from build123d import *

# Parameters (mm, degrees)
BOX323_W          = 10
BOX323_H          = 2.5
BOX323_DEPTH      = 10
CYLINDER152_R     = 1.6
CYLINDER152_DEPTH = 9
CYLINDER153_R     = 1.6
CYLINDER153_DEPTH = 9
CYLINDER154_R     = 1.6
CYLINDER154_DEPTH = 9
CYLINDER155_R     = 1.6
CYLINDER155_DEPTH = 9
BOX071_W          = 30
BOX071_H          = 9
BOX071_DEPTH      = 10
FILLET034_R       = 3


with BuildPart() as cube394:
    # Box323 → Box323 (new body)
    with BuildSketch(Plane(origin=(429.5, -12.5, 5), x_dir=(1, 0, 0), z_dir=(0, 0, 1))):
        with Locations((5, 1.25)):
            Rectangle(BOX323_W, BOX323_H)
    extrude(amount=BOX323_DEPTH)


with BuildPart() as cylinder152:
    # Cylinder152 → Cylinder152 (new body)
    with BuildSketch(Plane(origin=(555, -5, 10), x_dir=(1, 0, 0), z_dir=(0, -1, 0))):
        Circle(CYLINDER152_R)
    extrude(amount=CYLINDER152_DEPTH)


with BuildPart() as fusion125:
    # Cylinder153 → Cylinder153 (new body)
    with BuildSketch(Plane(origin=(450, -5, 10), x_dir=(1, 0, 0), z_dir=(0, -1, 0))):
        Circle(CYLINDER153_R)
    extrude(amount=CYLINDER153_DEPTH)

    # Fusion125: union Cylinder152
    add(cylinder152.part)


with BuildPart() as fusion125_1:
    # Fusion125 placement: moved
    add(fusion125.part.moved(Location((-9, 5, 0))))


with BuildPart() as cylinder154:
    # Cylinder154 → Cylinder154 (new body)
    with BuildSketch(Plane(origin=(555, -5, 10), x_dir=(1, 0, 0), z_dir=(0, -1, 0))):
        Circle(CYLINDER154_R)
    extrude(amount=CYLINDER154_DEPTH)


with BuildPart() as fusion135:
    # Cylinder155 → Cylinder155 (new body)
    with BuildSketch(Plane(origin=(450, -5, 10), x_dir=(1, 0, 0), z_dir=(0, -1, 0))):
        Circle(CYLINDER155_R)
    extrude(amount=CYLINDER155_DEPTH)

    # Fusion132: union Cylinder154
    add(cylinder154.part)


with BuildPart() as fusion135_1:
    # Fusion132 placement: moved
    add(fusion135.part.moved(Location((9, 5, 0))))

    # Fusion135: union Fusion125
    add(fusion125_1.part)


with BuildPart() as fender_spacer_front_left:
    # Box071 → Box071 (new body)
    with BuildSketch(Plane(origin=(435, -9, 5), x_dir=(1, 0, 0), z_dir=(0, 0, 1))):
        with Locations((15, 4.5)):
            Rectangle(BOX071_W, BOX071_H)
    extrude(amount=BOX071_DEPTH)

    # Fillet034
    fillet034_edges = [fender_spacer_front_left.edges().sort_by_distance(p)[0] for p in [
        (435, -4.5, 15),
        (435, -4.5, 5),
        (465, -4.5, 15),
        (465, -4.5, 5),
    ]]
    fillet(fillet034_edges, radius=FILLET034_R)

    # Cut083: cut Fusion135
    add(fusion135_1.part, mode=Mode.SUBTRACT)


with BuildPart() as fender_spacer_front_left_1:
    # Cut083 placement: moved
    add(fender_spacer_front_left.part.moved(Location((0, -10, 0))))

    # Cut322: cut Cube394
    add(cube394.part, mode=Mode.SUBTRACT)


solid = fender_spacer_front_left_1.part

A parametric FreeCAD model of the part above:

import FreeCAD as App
import Part
import Sketcher

V = App.Vector


def edges_at(feature, points):
    """Names of the edges that pass closest to the given points."""
    edges = feature.Shape.Edges
    near = lambda p: min(range(len(edges)), key=lambda i: edges[i].distToShape(Part.Vertex(*p))[0])
    return sorted({f"Edge{near(p) + 1}" for p in points})


def add_polygon(sketch, points):
    """Adds a closed chain of lines whose ends are joined by coincident constraints."""
    first, n = sketch.GeometryCount, len(points)
    for a, b in zip(points, points[1:] + points[:1]):
        sketch.addGeometry(Part.LineSegment(App.Vector(*a, 0), App.Vector(*b, 0)), False)
    for i in range(n):
        sketch.addConstraint(Sketcher.Constraint("Coincident", first + i, 2, first + (i + 1) % n, 1))

doc = App.newDocument("Part")
params = doc.addObject("Spreadsheet::Sheet", "Params")
for row, (alias, value) in enumerate([
    ("sketch1_width", "10 mm"),
    ("sketch1_height", "2.5 mm"),
    ("pad1_length", "10 mm"),
    ("sketch2_diameter", "3.2 mm"),
    ("pad2_length", "9 mm"),
    ("sketch3_diameter", "3.2 mm"),
    ("pad3_length", "9 mm"),
    ("sketch4_diameter", "3.2 mm"),
    ("pad4_length", "9 mm"),
    ("sketch5_diameter", "3.2 mm"),
    ("pad5_length", "9 mm"),
    ("sketch6_width", "30 mm"),
    ("sketch6_height", "9 mm"),
    ("pad6_length", "10 mm"),
    ("fillet_radius", "3 mm"),
], start=1):
    params.set(f"A{row}", alias)
    params.set(f"B{row}", "=" + value)
    params.setAlias(f"B{row}", alias)

body = doc.addObject("PartDesign::Body", "Body")

# Sketch on XY plane
sketch1 = doc.addObject("Sketcher::SketchObject", "Sketch")
body.addObject(sketch1)
sketch1.AttachmentSupport = (doc.XY_Plane, [""])
sketch1.MapMode = "FlatFace"
sketch1.AttachmentOffset = App.Placement(V(0, 0, 5), App.Rotation())
add_polygon(sketch1, [(429.5, -10), (429.5, -12.5), (439.5, -12.5), (439.5, -10)])  # lines 0-3
sketch1.addConstraint([
    Sketcher.Constraint("Vertical", 0),
    Sketcher.Constraint("Horizontal", 1),
    Sketcher.Constraint("Vertical", 2),
    Sketcher.Constraint("Horizontal", 3),
    Sketcher.Constraint("DistanceX", 1, 1, 1, 2, 10.0),
    Sketcher.Constraint("DistanceY", 0, 2, 0, 1, 2.5),
    Sketcher.Constraint("DistanceY", 2, 2, -1, 1, 10.0),
    Sketcher.Constraint("DistanceX", -1, 1, 0, 2, 429.5),
])
sketch1.setExpression("Constraints[8]", "Params.sketch1_width")
sketch1.setExpression("Constraints[9]", "Params.sketch1_height")
pad1 = doc.addObject("PartDesign::Pad", "Pad")
body.addObject(pad1)
pad1.Profile = sketch1
pad1.setExpression("Length", "Params.pad1_length")
body2 = doc.addObject("PartDesign::Body", "Body001")

# Sketch on XZ plane
sketch2 = doc.addObject("Sketcher::SketchObject", "Sketch001")
body2.addObject(sketch2)
sketch2.AttachmentSupport = (doc.getObject("XZ_Plane001"), [""])
sketch2.MapMode = "FlatFace"
sketch2.AttachmentOffset = App.Placement(V(0, 0, 5), App.Rotation())
sketch2.addGeometry(Part.Circle(V(555, 10, 0), V(0, 0, 1), 1.6), False)
sketch2.addConstraint([
    Sketcher.Constraint("Diameter", 0, 3.2),
    Sketcher.Constraint("DistanceX", -1, 1, 0, 3, 555.0),
    Sketcher.Constraint("DistanceY", -1, 1, 0, 3, 10.0),
])
sketch2.setExpression("Constraints[0]", "Params.sketch2_diameter")
pad2 = doc.addObject("PartDesign::Pad", "Pad001")
body2.addObject(pad2)
pad2.Profile = sketch2
pad2.setExpression("Length", "Params.pad2_length")
body3 = doc.addObject("PartDesign::Body", "Body002")
body3.AllowCompound = True

# Sketch on XZ plane
sketch3 = doc.addObject("Sketcher::SketchObject", "Sketch002")
body3.addObject(sketch3)
sketch3.AttachmentSupport = (doc.getObject("XZ_Plane002"), [""])
sketch3.MapMode = "FlatFace"
sketch3.AttachmentOffset = App.Placement(V(0, 0, 5), App.Rotation())
sketch3.addGeometry(Part.Circle(V(450, 10, 0), V(0, 0, 1), 1.6), False)
sketch3.addConstraint([
    Sketcher.Constraint("Diameter", 0, 3.2),
    Sketcher.Constraint("DistanceX", -1, 1, 0, 3, 450.0),
    Sketcher.Constraint("DistanceY", -1, 1, 0, 3, 10.0),
])
sketch3.setExpression("Constraints[0]", "Params.sketch3_diameter")
pad3 = doc.addObject("PartDesign::Pad", "Pad002")
body3.addObject(pad3)
pad3.Profile = sketch3
pad3.setExpression("Length", "Params.pad3_length")
doc.recompute()

boolean = doc.addObject("PartDesign::Boolean", "Boolean")
body3.addObject(boolean)
boolean.Type = "Fuse"
boolean.addObjects([body2])
body4 = doc.addObject("PartDesign::Body", "Body003")
body4.AllowCompound = True
doc.recompute()

body3.Placement = App.Placement(V(-9, 5, 0), App.Rotation(V(0, 0, 1), 0))
boolean2 = doc.addObject("PartDesign::Boolean", "Boolean001")
body4.addObject(boolean2)
boolean2.Type = "Fuse"
boolean2.addObjects([body3])
body5 = doc.addObject("PartDesign::Body", "Body004")

# Sketch on XZ plane
sketch4 = doc.addObject("Sketcher::SketchObject", "Sketch003")
body5.addObject(sketch4)
sketch4.AttachmentSupport = (doc.getObject("XZ_Plane004"), [""])
sketch4.MapMode = "FlatFace"
sketch4.AttachmentOffset = App.Placement(V(0, 0, 5), App.Rotation())
sketch4.addGeometry(Part.Circle(V(555, 10, 0), V(0, 0, 1), 1.6), False)
sketch4.addConstraint([
    Sketcher.Constraint("Diameter", 0, 3.2),
    Sketcher.Constraint("DistanceX", -1, 1, 0, 3, 555.0),
    Sketcher.Constraint("DistanceY", -1, 1, 0, 3, 10.0),
])
sketch4.setExpression("Constraints[0]", "Params.sketch4_diameter")
pad4 = doc.addObject("PartDesign::Pad", "Pad003")
body5.addObject(pad4)
pad4.Profile = sketch4
pad4.setExpression("Length", "Params.pad4_length")
body6 = doc.addObject("PartDesign::Body", "Body005")
body6.AllowCompound = True

# Sketch on XZ plane
sketch5 = doc.addObject("Sketcher::SketchObject", "Sketch004")
body6.addObject(sketch5)
sketch5.AttachmentSupport = (doc.getObject("XZ_Plane005"), [""])
sketch5.MapMode = "FlatFace"
sketch5.AttachmentOffset = App.Placement(V(0, 0, 5), App.Rotation())
sketch5.addGeometry(Part.Circle(V(450, 10, 0), V(0, 0, 1), 1.6), False)
sketch5.addConstraint([
    Sketcher.Constraint("Diameter", 0, 3.2),
    Sketcher.Constraint("DistanceX", -1, 1, 0, 3, 450.0),
    Sketcher.Constraint("DistanceY", -1, 1, 0, 3, 10.0),
])
sketch5.setExpression("Constraints[0]", "Params.sketch5_diameter")
pad5 = doc.addObject("PartDesign::Pad", "Pad004")
body6.addObject(pad5)
pad5.Profile = sketch5
pad5.setExpression("Length", "Params.pad5_length")
doc.recompute()

boolean3 = doc.addObject("PartDesign::Boolean", "Boolean002")
body6.addObject(boolean3)
boolean3.Type = "Fuse"
boolean3.addObjects([body5])
body7 = doc.addObject("PartDesign::Body", "Body006")
body7.AllowCompound = True
doc.recompute()

body6.Placement = App.Placement(V(9, 5, 0), App.Rotation(V(0, 0, 1), 0))
boolean4 = doc.addObject("PartDesign::Boolean", "Boolean003")
body7.addObject(boolean4)
boolean4.Type = "Fuse"
boolean4.addObjects([body6])
doc.recompute()

boolean5 = doc.addObject("PartDesign::Boolean", "Boolean004")
body7.addObject(boolean5)
boolean5.Type = "Fuse"
boolean5.addObjects([body4])
body8 = doc.addObject("PartDesign::Body", "Body007")

# Sketch on XY plane
sketch6 = doc.addObject("Sketcher::SketchObject", "Sketch005")
body8.addObject(sketch6)
sketch6.AttachmentSupport = (doc.getObject("XY_Plane007"), [""])
sketch6.MapMode = "FlatFace"
sketch6.AttachmentOffset = App.Placement(V(0, 0, 5), App.Rotation())
add_polygon(sketch6, [(435, 0), (435, -9), (465, -9), (465, 0)])  # lines 0-3
sketch6.addConstraint([
    Sketcher.Constraint("Vertical", 0),
    Sketcher.Constraint("Horizontal", 1),
    Sketcher.Constraint("Vertical", 2),
    Sketcher.Constraint("Horizontal", 3),
    Sketcher.Constraint("PointOnObject", 2, 2, -1),
    Sketcher.Constraint("DistanceX", 1, 1, 1, 2, 30.0),
    Sketcher.Constraint("DistanceY", 0, 2, 0, 1, 9.0),
    Sketcher.Constraint("DistanceX", -1, 1, 0, 2, 435.0),
])
sketch6.setExpression("Constraints[9]", "Params.sketch6_width")
sketch6.setExpression("Constraints[10]", "Params.sketch6_height")
pad6 = doc.addObject("PartDesign::Pad", "Pad005")
body8.addObject(pad6)
pad6.Profile = sketch6
pad6.setExpression("Length", "Params.pad6_length")
doc.recompute()

fillet = doc.addObject("PartDesign::Fillet", "Fillet")
body8.addObject(fillet)
fillet.Base = (pad6, edges_at(pad6, [
    (435, -4.5, 15),
    (435, -4.5, 5),
    (465, -4.5, 15),
    (465, -4.5, 5),
]))
fillet.setExpression("Radius", "Params.fillet_radius")
doc.recompute()

boolean6 = doc.addObject("PartDesign::Boolean", "Boolean005")
body8.addObject(boolean6)
boolean6.Type = "Cut"
boolean6.addObjects([body7])
body9 = doc.addObject("PartDesign::Body", "Body008")
doc.recompute()

body8.Placement = App.Placement(V(0, -10, 0), App.Rotation(V(0, 0, 1), 0))
boolean7 = doc.addObject("PartDesign::Boolean", "Boolean006")
body9.addObject(boolean7)
boolean7.Type = "Fuse"
boolean7.addObjects([body8])
doc.recompute()

boolean8 = doc.addObject("PartDesign::Boolean", "Boolean007")
body9.addObject(boolean8)
boolean8.Type = "Cut"
boolean8.addObjects([body])

doc.recompute()
